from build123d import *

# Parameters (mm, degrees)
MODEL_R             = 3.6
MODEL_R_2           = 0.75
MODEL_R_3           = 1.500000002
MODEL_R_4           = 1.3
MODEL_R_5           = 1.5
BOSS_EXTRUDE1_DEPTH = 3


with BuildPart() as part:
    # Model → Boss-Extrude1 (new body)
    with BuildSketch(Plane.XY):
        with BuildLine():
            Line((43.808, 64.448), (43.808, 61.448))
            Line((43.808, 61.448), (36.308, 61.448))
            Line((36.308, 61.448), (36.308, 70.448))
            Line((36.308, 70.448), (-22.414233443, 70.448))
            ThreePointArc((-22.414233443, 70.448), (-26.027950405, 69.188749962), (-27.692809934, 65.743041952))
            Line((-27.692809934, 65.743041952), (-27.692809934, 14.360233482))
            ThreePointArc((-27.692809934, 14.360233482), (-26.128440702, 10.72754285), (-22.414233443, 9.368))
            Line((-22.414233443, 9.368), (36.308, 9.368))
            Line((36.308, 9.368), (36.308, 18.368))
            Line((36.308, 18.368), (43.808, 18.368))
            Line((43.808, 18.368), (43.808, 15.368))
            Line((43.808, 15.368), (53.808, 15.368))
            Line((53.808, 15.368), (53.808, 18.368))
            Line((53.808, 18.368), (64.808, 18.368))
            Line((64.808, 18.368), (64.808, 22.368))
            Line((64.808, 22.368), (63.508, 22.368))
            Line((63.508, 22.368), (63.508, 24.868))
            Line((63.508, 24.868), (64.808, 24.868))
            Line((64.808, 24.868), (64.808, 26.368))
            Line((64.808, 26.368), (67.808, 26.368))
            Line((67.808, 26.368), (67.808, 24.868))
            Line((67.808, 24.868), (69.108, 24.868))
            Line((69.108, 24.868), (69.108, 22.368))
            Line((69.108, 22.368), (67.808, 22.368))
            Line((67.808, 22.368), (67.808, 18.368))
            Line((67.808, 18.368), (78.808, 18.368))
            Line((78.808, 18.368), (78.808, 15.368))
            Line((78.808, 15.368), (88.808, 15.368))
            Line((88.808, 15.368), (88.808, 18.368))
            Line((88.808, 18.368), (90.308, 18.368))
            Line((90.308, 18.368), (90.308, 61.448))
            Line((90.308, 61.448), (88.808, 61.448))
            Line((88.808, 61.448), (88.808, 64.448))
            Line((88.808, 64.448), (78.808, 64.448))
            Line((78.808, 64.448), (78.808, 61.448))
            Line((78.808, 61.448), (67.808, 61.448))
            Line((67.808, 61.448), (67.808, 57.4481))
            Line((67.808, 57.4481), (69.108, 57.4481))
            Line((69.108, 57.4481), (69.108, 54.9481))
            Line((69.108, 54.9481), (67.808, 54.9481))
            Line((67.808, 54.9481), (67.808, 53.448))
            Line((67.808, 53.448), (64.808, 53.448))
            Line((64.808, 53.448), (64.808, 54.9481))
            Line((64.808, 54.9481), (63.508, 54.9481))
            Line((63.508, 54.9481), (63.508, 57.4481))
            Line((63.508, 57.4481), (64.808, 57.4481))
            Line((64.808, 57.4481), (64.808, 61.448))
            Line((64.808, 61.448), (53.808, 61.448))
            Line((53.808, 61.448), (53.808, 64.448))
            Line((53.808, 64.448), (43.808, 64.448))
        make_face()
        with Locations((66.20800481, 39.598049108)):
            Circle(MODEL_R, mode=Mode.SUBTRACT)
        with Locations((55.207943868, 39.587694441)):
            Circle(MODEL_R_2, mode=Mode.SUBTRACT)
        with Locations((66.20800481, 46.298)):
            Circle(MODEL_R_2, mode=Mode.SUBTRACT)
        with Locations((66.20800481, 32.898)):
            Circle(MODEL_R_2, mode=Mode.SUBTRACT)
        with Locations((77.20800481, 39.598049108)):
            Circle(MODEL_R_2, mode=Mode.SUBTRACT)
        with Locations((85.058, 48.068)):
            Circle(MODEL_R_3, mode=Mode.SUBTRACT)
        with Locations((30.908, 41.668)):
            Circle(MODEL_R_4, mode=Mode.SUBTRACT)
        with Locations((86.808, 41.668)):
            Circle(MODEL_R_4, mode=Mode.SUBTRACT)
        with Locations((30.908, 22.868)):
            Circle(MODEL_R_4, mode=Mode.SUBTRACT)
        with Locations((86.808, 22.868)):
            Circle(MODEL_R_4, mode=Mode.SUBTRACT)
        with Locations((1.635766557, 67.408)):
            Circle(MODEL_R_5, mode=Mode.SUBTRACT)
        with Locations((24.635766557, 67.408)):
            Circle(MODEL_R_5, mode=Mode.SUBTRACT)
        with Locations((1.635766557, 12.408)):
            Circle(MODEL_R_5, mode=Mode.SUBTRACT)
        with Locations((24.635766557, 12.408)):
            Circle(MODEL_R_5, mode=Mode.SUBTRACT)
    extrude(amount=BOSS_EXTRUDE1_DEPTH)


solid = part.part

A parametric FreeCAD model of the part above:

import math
import FreeCAD as App
import Part
import Sketcher
from FreeCAD import Vector

doc = App.newDocument("Part")
body = doc.addObject("PartDesign::Body", "Body")

sketch1 = body.newObject("Sketcher::SketchObject", "Sketch")
sketch1.AttachmentSupport = (doc.getObject("XY_Plane"), [""])
sketch1.MapMode = "FlatFace"
sketch1.addGeometry([
    Part.LineSegment(Vector(43.808, 64.448, 0), Vector(43.808, 61.448, 0)),
    Part.LineSegment(Vector(43.808, 61.448, 0), Vector(36.308, 61.448, 0)),
    Part.LineSegment(Vector(36.308, 61.448, 0), Vector(36.308, 70.448, 0)),
    Part.LineSegment(Vector(36.308, 70.448, 0), Vector(-22.414233, 70.448, 0)),
    Part.ArcOfCircle(Part.Circle(Vector(-22.701043, 65.456233, 0), Vector(0, 0, 1), 5), math.radians(86.711603), math.radians(176.711603)),
    Part.LineSegment(Vector(-27.69281, 65.743042, 0), Vector(-27.69281, 14.360233, 0)),
    Part.ArcOfCircle(Part.Circle(Vector(-22.69281, 14.360233, 0), Vector(0, 0, 1), 5), math.radians(180), math.radians(273.193905)),
    Part.LineSegment(Vector(-22.414233, 9.368, 0), Vector(36.308, 9.368, 0)),
    Part.LineSegment(Vector(36.308, 9.368, 0), Vector(36.308, 18.368, 0)),
    Part.LineSegment(Vector(36.308, 18.368, 0), Vector(43.808, 18.368, 0)),
    Part.LineSegment(Vector(43.808, 18.368, 0), Vector(43.808, 15.368, 0)),
    Part.LineSegment(Vector(43.808, 15.368, 0), Vector(53.808, 15.368, 0)),
    Part.LineSegment(Vector(53.808, 15.368, 0), Vector(53.808, 18.368, 0)),
    Part.LineSegment(Vector(53.808, 18.368, 0), Vector(64.808, 18.368, 0)),
    Part.LineSegment(Vector(64.808, 18.368, 0), Vector(64.808, 22.368, 0)),
    Part.LineSegment(Vector(64.808, 22.368, 0), Vector(63.508, 22.368, 0)),
    Part.LineSegment(Vector(63.508, 22.368, 0), Vector(63.508, 24.868, 0)),
    Part.LineSegment(Vector(63.508, 24.868, 0), Vector(64.808, 24.868, 0)),
    Part.LineSegment(Vector(64.808, 24.868, 0), Vector(64.808, 26.368, 0)),
    Part.LineSegment(Vector(64.808, 26.368, 0), Vector(67.808, 26.368, 0)),
    Part.LineSegment(Vector(67.808, 26.368, 0), Vector(67.808, 24.868, 0)),
    Part.LineSegment(Vector(67.808, 24.868, 0), Vector(69.108, 24.868, 0)),
    Part.LineSegment(Vector(69.108, 24.868, 0), Vector(69.108, 22.368, 0)),
    Part.LineSegment(Vector(69.108, 22.368, 0), Vector(67.808, 22.368, 0)),
    Part.LineSegment(Vector(67.808, 22.368, 0), Vector(67.808, 18.368, 0)),
    Part.LineSegment(Vector(67.808, 18.368, 0), Vector(78.808, 18.368, 0)),
    Part.LineSegment(Vector(78.808, 18.368, 0), Vector(78.808, 15.368, 0)),
    Part.LineSegment(Vector(78.808, 15.368, 0), Vector(88.808, 15.368, 0)),
    Part.LineSegment(Vector(88.808, 15.368, 0), Vector(88.808, 18.368, 0)),
    Part.LineSegment(Vector(88.808, 18.368, 0), Vector(90.308, 18.368, 0)),
    Part.LineSegment(Vector(90.308, 18.368, 0), Vector(90.308, 61.448, 0)),
    Part.LineSegment(Vector(90.308, 61.448, 0), Vector(88.808, 61.448, 0)),
    Part.LineSegment(Vector(88.808, 61.448, 0), Vector(88.808, 64.448, 0)),
    Part.LineSegment(Vector(88.808, 64.448, 0), Vector(78.808, 64.448, 0)),
    Part.LineSegment(Vector(78.808, 64.448, 0), Vector(78.808, 61.448, 0)),
    Part.LineSegment(Vector(78.808, 61.448, 0), Vector(67.808, 61.448, 0)),
    Part.LineSegment(Vector(67.808, 61.448, 0), Vector(67.808, 57.4481, 0)),
    Part.LineSegment(Vector(67.808, 57.4481, 0), Vector(69.108, 57.4481, 0)),
    Part.LineSegment(Vector(69.108, 57.4481, 0), Vector(69.108, 54.9481, 0)),
    Part.LineSegment(Vector(69.108, 54.9481, 0), Vector(67.808, 54.9481, 0)),
    Part.LineSegment(Vector(67.808, 54.9481, 0), Vector(67.808, 53.448, 0)),
    Part.LineSegment(Vector(67.808, 53.448, 0), Vector(64.808, 53.448, 0)),
    Part.LineSegment(Vector(64.808, 53.448, 0), Vector(64.808, 54.9481, 0)),
    Part.LineSegment(Vector(64.808, 54.9481, 0), Vector(63.508, 54.9481, 0)),
    Part.LineSegment(Vector(63.508, 54.9481, 0), Vector(63.508, 57.4481, 0)),
    Part.LineSegment(Vector(63.508, 57.4481, 0), Vector(64.808, 57.4481, 0)),
    Part.LineSegment(Vector(64.808, 57.4481, 0), Vector(64.808, 61.448, 0)),
    Part.LineSegment(Vector(64.808, 61.448, 0), Vector(53.808, 61.448, 0)),
    Part.LineSegment(Vector(53.808, 61.448, 0), Vector(53.808, 64.448, 0)),
    Part.LineSegment(Vector(53.808, 64.448, 0), Vector(43.808, 64.448, 0)),
    Part.Circle(Vector(1.635767, 12.408, 0), Vector(0, 0, 1), 1.5),
    Part.Circle(Vector(24.635767, 12.408, 0), Vector(0, 0, 1), 1.5),
    Part.Circle(Vector(30.908, 22.868, 0), Vector(0, 0, 1), 1.3),
    Part.Circle(Vector(86.808, 22.868, 0), Vector(0, 0, 1), 1.3),
    Part.Circle(Vector(55.207944, 39.587694, 0), Vector(0, 0, 1), 0.75),
    Part.Circle(Vector(66.208005, 32.898, 0), Vector(0, 0, 1), 0.75),
    Part.Circle(Vector(66.208005, 39.598049, 0), Vector(0, 0, 1), 3.6),
    Part.Circle(Vector(77.208005, 39.598049, 0), Vector(0, 0, 1), 0.75),
    Part.Circle(Vector(30.908, 41.668, 0), Vector(0, 0, 1), 1.3),
    Part.Circle(Vector(1.635767, 67.408, 0), Vector(0, 0, 1), 1.5),
    Part.Circle(Vector(24.635767, 67.408, 0), Vector(0, 0, 1), 1.5),
    Part.Circle(Vector(66.208005, 46.298, 0), Vector(0, 0, 1), 0.75),
    Part.Circle(Vector(86.808, 41.668, 0), Vector(0, 0, 1), 1.3),
    Part.Circle(Vector(85.058, 48.068, 0), Vector(0, 0, 1), 1.5),
], False)
sketch1.addConstraint([
    Sketcher.Constraint("Coincident", 0, 2, 1, 1),
    Sketcher.Constraint("Coincident", 1, 2, 2, 1),
    Sketcher.Constraint("Coincident", 2, 2, 3, 1),
    Sketcher.Constraint("Coincident", 3, 2, 4, 1),
    Sketcher.Constraint("Coincident", 4, 2, 5, 1),
    Sketcher.Constraint("Tangent", 5, 2, 6, 1),
    Sketcher.Constraint("Coincident", 6, 2, 7, 1),
    Sketcher.Constraint("Coincident", 7, 2, 8, 1),
    Sketcher.Constraint("Coincident", 8, 2, 9, 1),
    Sketcher.Constraint("Coincident", 9, 2, 10, 1),
    Sketcher.Constraint("Coincident", 10, 2, 11, 1),
    Sketcher.Constraint("Coincident", 11, 2, 12, 1),
    Sketcher.Constraint("Coincident", 12, 2, 13, 1),
    Sketcher.Constraint("Coincident", 13, 2, 14, 1),
    Sketcher.Constraint("Coincident", 14, 2, 15, 1),
    Sketcher.Constraint("Coincident", 15, 2, 16, 1),
    Sketcher.Constraint("Coincident", 16, 2, 17, 1),
    Sketcher.Constraint("Coincident", 17, 2, 18, 1),
    Sketcher.Constraint("Coincident", 18, 2, 19, 1),
    Sketcher.Constraint("Coincident", 19, 2, 20, 1),
    Sketcher.Constraint("Coincident", 20, 2, 21, 1),
    Sketcher.Constraint("Coincident", 21, 2, 22, 1),
    Sketcher.Constraint("Coincident", 22, 2, 23, 1),
    Sketcher.Constraint("Coincident", 23, 2, 24, 1),
    Sketcher.Constraint("Coincident", 24, 2, 25, 1),
    Sketcher.Constraint("Coincident", 25, 2, 26, 1),
    Sketcher.Constraint("Coincident", 26, 2, 27, 1),
    Sketcher.Constraint("Coincident", 27, 2, 28, 1),
    Sketcher.Constraint("Coincident", 28, 2, 29, 1),
    Sketcher.Constraint("Coincident", 29, 2, 30, 1),
    Sketcher.Constraint("Coincident", 30, 2, 31, 1),
    Sketcher.Constraint("Coincident", 31, 2, 32, 1),
    Sketcher.Constraint("Coincident", 32, 2, 33, 1),
    Sketcher.Constraint("Coincident", 33, 2, 34, 1),
    Sketcher.Constraint("Coincident", 34, 2, 35, 1),
    Sketcher.Constraint("Coincident", 35, 2, 36, 1),
    Sketcher.Constraint("Coincident", 36, 2, 37, 1),
    Sketcher.Constraint("Coincident", 37, 2, 38, 1),
    Sketcher.Constraint("Coincident", 38, 2, 39, 1),
    Sketcher.Constraint("Coincident", 39, 2, 40, 1),
    Sketcher.Constraint("Coincident", 40, 2, 41, 1),
    Sketcher.Constraint("Coincident", 41, 2, 42, 1),
    Sketcher.Constraint("Coincident", 42, 2, 43, 1),
    Sketcher.Constraint("Coincident", 43, 2, 44, 1),
    Sketcher.Constraint("Coincident", 44, 2, 45, 1),
    Sketcher.Constraint("Coincident", 45, 2, 46, 1),
    Sketcher.Constraint("Coincident", 46, 2, 47, 1),
    Sketcher.Constraint("Coincident", 47, 2, 48, 1),
    Sketcher.Constraint("Coincident", 48, 2, 49, 1),
    Sketcher.Constraint("Coincident", 49, 2, 0, 1),
    Sketcher.Constraint("Vertical", 0),
    Sketcher.Constraint("Horizontal", 1),
    Sketcher.Constraint("Vertical", 2),
    Sketcher.Constraint("Horizontal", 3),
    Sketcher.Constraint("Vertical", 5),
    Sketcher.Constraint("Horizontal", 7),
    Sketcher.Constraint("Vertical", 8),
    Sketcher.Constraint("Horizontal", 9),
    Sketcher.Constraint("Vertical", 10),
    Sketcher.Constraint("Horizontal", 11),
    Sketcher.Constraint("Vertical", 12),
    Sketcher.Constraint("Horizontal", 13),
    Sketcher.Constraint("Vertical", 14),
    Sketcher.Constraint("Horizontal", 15),
    Sketcher.Constraint("Vertical", 16),
    Sketcher.Constraint("Horizontal", 17),
    Sketcher.Constraint("Vertical", 18),
    Sketcher.Constraint("Horizontal", 19),
    Sketcher.Constraint("Vertical", 20),
    Sketcher.Constraint("Horizontal", 21),
    Sketcher.Constraint("Vertical", 22),
    Sketcher.Constraint("Horizontal", 23),
    Sketcher.Constraint("Vertical", 24),
    Sketcher.Constraint("Horizontal", 25),
    Sketcher.Constraint("Vertical", 26),
    Sketcher.Constraint("Horizontal", 27),
    Sketcher.Constraint("Vertical", 28),
    Sketcher.Constraint("Horizontal", 29),
    Sketcher.Constraint("Vertical", 30),
    Sketcher.Constraint("Horizontal", 31),
    Sketcher.Constraint("Vertical", 32),
    Sketcher.Constraint("Horizontal", 33),
    Sketcher.Constraint("Vertical", 34),
    Sketcher.Constraint("Horizontal", 35),
    Sketcher.Constraint("Vertical", 36),
    Sketcher.Constraint("Horizontal", 37),
    Sketcher.Constraint("Vertical", 38),
    Sketcher.Constraint("Horizontal", 39),
    Sketcher.Constraint("Vertical", 40),
    Sketcher.Constraint("Horizontal", 41),
    Sketcher.Constraint("Vertical", 42),
    Sketcher.Constraint("Horizontal", 43),
    Sketcher.Constraint("Vertical", 44),
    Sketcher.Constraint("Horizontal", 45),
    Sketcher.Constraint("Vertical", 46),
    Sketcher.Constraint("Horizontal", 47),
    Sketcher.Constraint("Vertical", 48),
    Sketcher.Constraint("Horizontal", 49),
    Sketcher.Constraint("Equal", 4, 6),
    Sketcher.Constraint("Equal", 50, 51),
    Sketcher.Constraint("Equal", 52, 53),
    Sketcher.Constraint("Equal", 54, 55),
    Sketcher.Constraint("Equal", 55, 57),
    Sketcher.Constraint("Equal", 53, 58),
    Sketcher.Constraint("Equal", 51, 59),
    Sketcher.Constraint("Equal", 59, 60),
    Sketcher.Constraint("Equal", 57, 61),
    Sketcher.Constraint("Equal", 58, 62),
    Sketcher.Constraint("Equal", 60, 63),
    Sketcher.Constraint("Horizontal", 50, 3, 51, 3),
    Sketcher.Constraint("Horizontal", 52, 3, 53, 3),
    Sketcher.Constraint("Horizontal", 56, 3, 57, 3),
    Sketcher.Constraint("Horizontal", 59, 3, 60, 3),
    Sketcher.Constraint("Horizontal", 58, 3, 62, 3),
    Sketcher.Constraint("Horizontal", 9, 2, 12, 2),
    Sketcher.Constraint("Horizontal", 17, 2, 20, 2),
    Sketcher.Constraint("Horizontal", 15, 2, 22, 2),
    Sketcher.Constraint("Horizontal", 13, 2, 24, 2),
    Sketcher.Constraint("Horizontal", 11, 2, 26, 2),
    Sketcher.Constraint("Horizontal", 25, 2, 28, 2),
    Sketcher.Constraint("Horizontal", 1, 2, 30, 2),
    Sketcher.Constraint("Horizontal", 31, 2, 34, 2),
    Sketcher.Constraint("Horizontal", 39, 2, 42, 2),
    Sketcher.Constraint("Horizontal", 37, 2, 44, 2),
    Sketcher.Constraint("Horizontal", 35, 2, 46, 2),
    Sketcher.Constraint("Horizontal", 33, 2, 48, 2),
    Sketcher.Constraint("Vertical", 55, 3, 56, 3),
    Sketcher.Constraint("Vertical", 52, 3, 58, 3),
    Sketcher.Constraint("Vertical", 50, 3, 59, 3),
    Sketcher.Constraint("Vertical", 51, 3, 60, 3),
    Sketcher.Constraint("Vertical", 56, 3, 61, 3),
    Sketcher.Constraint("Vertical", 53, 3, 62, 3),
    Sketcher.Constraint("Vertical", 3, 2, 6, 2),
    Sketcher.Constraint("Vertical", 2, 2, 7, 2),
    Sketcher.Constraint("Vertical", 0, 2, 9, 2),
    Sketcher.Constraint("Vertical", 14, 2, 17, 2),
    Sketcher.Constraint("Vertical", 20, 2, 23, 2),
    Sketcher.Constraint("Vertical", 28, 2, 31, 2),
    Sketcher.Constraint("Vertical", 26, 2, 33, 2),
    Sketcher.Constraint("Vertical", 24, 2, 35, 2),
    Sketcher.Constraint("Vertical", 22, 2, 37, 2),
    Sketcher.Constraint("Vertical", 36, 2, 39, 2),
    Sketcher.Constraint("Vertical", 18, 2, 41, 2),
    Sketcher.Constraint("Vertical", 16, 2, 43, 2),
    Sketcher.Constraint("Vertical", 42, 2, 45, 2),
    Sketcher.Constraint("Vertical", 12, 2, 47, 2),
    Sketcher.Constraint("Equal", 17, 21),
    Sketcher.Constraint("Equal", 13, 25),
    Sketcher.Constraint("Equal", 11, 27),
    Sketcher.Constraint("Equal", 41, 0),
    Sketcher.Constraint("Equal", 2, 8),
    Sketcher.Constraint("Equal", 0, 10),
    Sketcher.Constraint("Equal", 31, 18),
    Sketcher.Constraint("Equal", 22, 38),
    Sketcher.Constraint("Diameter", 50, 3.0),
    Sketcher.Constraint("Radius", 4, 5.0),
    Sketcher.Constraint("Diameter", 52, 2.6),
    Sketcher.Constraint("Diameter", 54, 1.5),
    Sketcher.Constraint("Diameter", 56, 7.2),
    Sketcher.Constraint("DistanceX", 11, 1, 11, 2, 10.0),
    Sketcher.Constraint("DistanceX", 13, 1, 13, 2, 11.0),
    Sketcher.Constraint("DistanceX", 19, 1, 19, 2, 3.0),
    Sketcher.Constraint("DistanceY", 2, 1, 2, 2, 9.0),
    Sketcher.Constraint("DistanceY", 14, 1, 14, 2, 4.0),
    Sketcher.Constraint("DistanceX", 1, 2, 1, 1, 7.5),
    Sketcher.Constraint("DistanceX", 15, 2, 15, 1, 1.3),
    Sketcher.Constraint("DistanceX", 29, 1, 29, 2, 1.5),
    Sketcher.Constraint("DistanceY", 16, 1, 16, 2, 2.5),
    Sketcher.Constraint("DistanceY", 30, 1, 30, 2, 43.08),
    Sketcher.Constraint("DistanceY", 36, 2, 36, 1, 3.9999),
    Sketcher.Constraint("DistanceY", 40, 2, 40, 1, 1.5001),
    Sketcher.Constraint("DistanceY", -1, 1, 50, 3, 12.408),
    Sketcher.Constraint("DistanceX", -1, 1, 52, 3, 30.908),
    Sketcher.Constraint("DistanceY", -1, 1, 52, 3, 22.868),
    Sketcher.Constraint("DistanceX", -1, 1, 53, 3, 86.808),
    Sketcher.Constraint("DistanceY", -1, 1, 55, 3, 32.898),
    Sketcher.Constraint("DistanceY", -1, 1, 58, 3, 41.668),
    Sketcher.Constraint("DistanceY", -1, 1, 59, 3, 67.408),
    Sketcher.Constraint("DistanceY", -1, 1, 61, 3, 46.298),
    Sketcher.Constraint("DistanceX", -1, 1, 63, 3, 85.058),
    Sketcher.Constraint("DistanceY", -1, 1, 63, 3, 48.068),
    Sketcher.Constraint("DistanceX", -1, 1, 0, 2, 43.808),
    Sketcher.Constraint("DistanceY", -1, 1, 0, 2, 61.448),
    Sketcher.Constraint("DistanceY", 5, 2, 5, 1, 51.382808),
    Sketcher.Constraint("DistanceX", 3, 2, 3, 1, 58.722233),
    Sketcher.Constraint("DistanceX", 6, 3, -1, 1, 22.69281),
    Sketcher.Constraint("DistanceY", -1, 1, 56, 3, 39.598049),
    Sketcher.Constraint("DistanceX", -1, 1, 50, 3, 1.635767),
    Sketcher.Constraint("DistanceX", -1, 1, 51, 3, 24.635767),
    Sketcher.Constraint("DistanceX", -1, 1, 54, 3, 55.207944),
    Sketcher.Constraint("DistanceY", -1, 1, 54, 3, 39.587694),
    Sketcher.Constraint("DistanceX", -1, 1, 55, 3, 66.208005),
    Sketcher.Constraint("DistanceX", -1, 1, 57, 3, 77.208005),
])
pad1 = body.newObject("PartDesign::Pad", "Pad")
pad1.Profile = sketch1
pad1.Length = 3

doc.recompute()
